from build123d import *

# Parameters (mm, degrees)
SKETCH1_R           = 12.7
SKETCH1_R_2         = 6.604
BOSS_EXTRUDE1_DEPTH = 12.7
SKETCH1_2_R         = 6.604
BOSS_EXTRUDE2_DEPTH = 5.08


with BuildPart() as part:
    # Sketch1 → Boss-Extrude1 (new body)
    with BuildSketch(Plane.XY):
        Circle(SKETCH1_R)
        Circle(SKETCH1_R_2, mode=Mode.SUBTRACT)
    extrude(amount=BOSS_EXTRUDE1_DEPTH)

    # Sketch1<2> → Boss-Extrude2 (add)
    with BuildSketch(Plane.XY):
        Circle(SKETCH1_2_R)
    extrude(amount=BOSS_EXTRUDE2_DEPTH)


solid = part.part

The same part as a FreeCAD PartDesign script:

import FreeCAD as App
import Part
import Sketcher

V = App.Vector
Q = App.Units.Quantity

doc = App.newDocument("Part")
params = doc.addObject("Spreadsheet::Sheet", "Params")
for row, (alias, value) in enumerate([
    ("sketch1_diameter", "1 in"),
    ("sketch1_diameter2", "0.52 in"),
    ("pad1_length", "0.5 in"),
    ("sketch2_diameter", "0.52 in"),
    ("pad2_length", "0.2 in"),
], start=1):
    params.set(f"A{row}", alias)
    params.set(f"B{row}", "=" + value)
    params.setAlias(f"B{row}", alias)

body = doc.addObject("PartDesign::Body", "Body")

sketch1 = body.newObject("Sketcher::SketchObject", "Sketch")
sketch1.AttachmentSupport = (doc.getObject("XY_Plane"), [""])
sketch1.MapMode = "FlatFace"
sketch1.addGeometry([
    Part.Circle(V(0, 0, 0), V(0, 0, 1), 13),
    Part.Circle(V(0, 0, 0), V(0, 0, 1), 7),
], False)
sketch1.addConstraint([
    Sketcher.Constraint("Coincident", 0, 3, -1, 1),
    Sketcher.Constraint("Coincident", 1, 3, -1, 1),
    Sketcher.Constraint("Diameter", 0, Q("1 in")),
    Sketcher.Constraint("Diameter", 1, Q("0.52 in")),
])
sketch1.setExpression("Constraints[2]", "Params.sketch1_diameter")
sketch1.setExpression("Constraints[3]", "Params.sketch1_diameter2")
pad1 = body.newObject("PartDesign::Pad", "Pad")
pad1.Profile = sketch1
pad1.setExpression("Length", "Params.pad1_length")

sketch2 = body.newObject("Sketcher::SketchObject", "Sketch001")
sketch2.AttachmentSupport = (doc.getObject("XY_Plane"), [""])
sketch2.MapMode = "FlatFace"
sketch2.addGeometry(Part.Circle(V(0, 0, 0), V(0, 0, 1), 7), False)
sketch2.addConstraint([
    Sketcher.Constraint("Coincident", 0, 3, -1, 1),
    Sketcher.Constraint("Diameter", 0, Q("0.52 in")),
])
sketch2.setExpression("Constraints[1]", "Params.sketch2_diameter")
pad2 = body.newObject("PartDesign::Pad", "Pad001")
pad2.Profile = sketch2
pad2.setExpression("Length", "Params.pad2_length")

doc.recompute()
